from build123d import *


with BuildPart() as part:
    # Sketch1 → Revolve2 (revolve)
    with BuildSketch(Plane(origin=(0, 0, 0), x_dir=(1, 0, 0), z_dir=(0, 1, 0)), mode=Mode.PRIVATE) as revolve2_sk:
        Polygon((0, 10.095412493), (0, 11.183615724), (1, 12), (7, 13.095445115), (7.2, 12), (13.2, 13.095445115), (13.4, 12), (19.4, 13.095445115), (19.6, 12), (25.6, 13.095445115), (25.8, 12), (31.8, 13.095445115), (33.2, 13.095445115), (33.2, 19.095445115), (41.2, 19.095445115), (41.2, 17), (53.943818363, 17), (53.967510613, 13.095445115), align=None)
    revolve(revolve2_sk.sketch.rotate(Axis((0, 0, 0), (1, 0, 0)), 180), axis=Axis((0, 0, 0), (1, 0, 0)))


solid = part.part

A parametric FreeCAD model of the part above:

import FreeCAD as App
import Part
import Sketcher
from FreeCAD import Vector

doc = App.newDocument("Part")
params = doc.addObject("Spreadsheet::Sheet", "Params")
for row, (alias, value) in enumerate([
    ("sketch1_width", "8 mm"),
    ("sketch1_height", "6 mm"),
    ("sketch1_width2", "1.4 mm"),
    ("revolution_angle", "360 deg"),
], start=1):
    params.set(f"A{row}", alias)
    params.set(f"B{row}", "=" + value)
    params.setAlias(f"B{row}", alias)

body = doc.addObject("PartDesign::Body", "Body")

sketch1 = doc.addObject("Sketcher::SketchObject", "Sketch")
body.addObject(sketch1)
sketch1.AttachmentSupport = (doc.XZ_Plane, [""])
sketch1.MapMode = "FlatFace"
sketch1.addGeometry([
    Part.LineSegment(Vector(0, -11.2, 0), Vector(0, -10.1, 0)),
    Part.LineSegment(Vector(0, -10.1, 0), Vector(54, -13.1, 0)),
    Part.LineSegment(Vector(54, -13.1, 0), Vector(53.9, -17, 0)),
    Part.LineSegment(Vector(53.9, -17, 0), Vector(41.2, -17, 0)),
    Part.LineSegment(Vector(41.2, -17, 0), Vector(41.2, -19.1, 0)),
    Part.LineSegment(Vector(41.2, -19.1, 0), Vector(33.2, -19.1, 0)),
    Part.LineSegment(Vector(33.2, -19.1, 0), Vector(33.2, -13.1, 0)),
    Part.LineSegment(Vector(33.2, -13.1, 0), Vector(31.8, -13.1, 0)),
    Part.LineSegment(Vector(31.8, -13.1, 0), Vector(25.8, -12, 0)),
    Part.LineSegment(Vector(25.8, -12, 0), Vector(25.6, -13.1, 0)),
    Part.LineSegment(Vector(25.6, -13.1, 0), Vector(19.6, -12, 0)),
    Part.LineSegment(Vector(19.6, -12, 0), Vector(19.4, -13.1, 0)),
    Part.LineSegment(Vector(19.4, -13.1, 0), Vector(13.4, -12, 0)),
    Part.LineSegment(Vector(13.4, -12, 0), Vector(13.2, -13.1, 0)),
    Part.LineSegment(Vector(13.2, -13.1, 0), Vector(7.2, -12, 0)),
    Part.LineSegment(Vector(7.2, -12, 0), Vector(7, -13.1, 0)),
    Part.LineSegment(Vector(7, -13.1, 0), Vector(1, -12, 0)),
    Part.LineSegment(Vector(1, -12, 0), Vector(0, -11.2, 0)),
], False)
sketch1.addConstraint([
    Sketcher.Constraint("Coincident", 0, 2, 1, 1),
    Sketcher.Constraint("Coincident", 1, 2, 2, 1),
    Sketcher.Constraint("Coincident", 2, 2, 3, 1),
    Sketcher.Constraint("Coincident", 3, 2, 4, 1),
    Sketcher.Constraint("Coincident", 4, 2, 5, 1),
    Sketcher.Constraint("Coincident", 5, 2, 6, 1),
    Sketcher.Constraint("Coincident", 6, 2, 7, 1),
    Sketcher.Constraint("Coincident", 7, 2, 8, 1),
    Sketcher.Constraint("Coincident", 8, 2, 9, 1),
    Sketcher.Constraint("Coincident", 9, 2, 10, 1),
    Sketcher.Constraint("Coincident", 10, 2, 11, 1),
    Sketcher.Constraint("Coincident", 11, 2, 12, 1),
    Sketcher.Constraint("Coincident", 12, 2, 13, 1),
    Sketcher.Constraint("Coincident", 13, 2, 14, 1),
    Sketcher.Constraint("Coincident", 14, 2, 15, 1),
    Sketcher.Constraint("Coincident", 15, 2, 16, 1),
    Sketcher.Constraint("Coincident", 16, 2, 17, 1),
    Sketcher.Constraint("Coincident", 17, 2, 0, 1),
    Sketcher.Constraint("Vertical", 0),
    Sketcher.Constraint("Horizontal", 3),
    Sketcher.Constraint("Vertical", 4),
    Sketcher.Constraint("Horizontal", 5),
    Sketcher.Constraint("Vertical", 6),
    Sketcher.Constraint("Horizontal", 7),
    Sketcher.Constraint("PointOnObject", 0, 2, -2),
    Sketcher.Constraint("Perpendicular", 8, 9),
    Sketcher.Constraint("Perpendicular", 9, 10),
    Sketcher.Constraint("Perpendicular", 10, 11),
    Sketcher.Constraint("Perpendicular", 11, 12),
    Sketcher.Constraint("Perpendicular", 12, 13),
    Sketcher.Constraint("Perpendicular", 13, 14),
    Sketcher.Constraint("Perpendicular", 14, 15),
    Sketcher.Constraint("Perpendicular", 15, 16),
    Sketcher.Constraint("Horizontal", 1, 2, 6, 2),
    Sketcher.Constraint("Horizontal", 7, 2, 9, 2),
    Sketcher.Constraint("Horizontal", 8, 2, 10, 2),
    Sketcher.Constraint("Horizontal", 9, 2, 11, 2),
    Sketcher.Constraint("Horizontal", 10, 2, 12, 2),
    Sketcher.Constraint("Horizontal", 11, 2, 13, 2),
    Sketcher.Constraint("Horizontal", 12, 2, 14, 2),
    Sketcher.Constraint("Horizontal", 13, 2, 15, 2),
    Sketcher.Constraint("Horizontal", 14, 2, 16, 2),
    Sketcher.Constraint("DistanceX", 5, 2, 5, 1, 8.0),
    Sketcher.Constraint("DistanceY", 6, 1, 6, 2, 6.0),
    Sketcher.Constraint("DistanceX", 7, 2, 7, 1, 1.4),
    Sketcher.Constraint("DistanceY", 2, 2, -1, 1, 17.0),
    Sketcher.Constraint("DistanceY", 8, 2, -1, 1, 12.0),
    Sketcher.Constraint("DistanceX", -1, 1, 15, 2, 7.0),
    Sketcher.Constraint("DistanceX", -1, 1, 16, 2, 1.0),
    Sketcher.Constraint("DistanceX", -1, 1, 3, 2, 41.2),
    Sketcher.Constraint("DistanceX", 3, 2, 3, 1, 12.743818),
    Sketcher.Constraint("Distance", 1, 54.050832),
    Sketcher.Constraint("DistanceY", 0, 1, 0, 2, 1.088203),
    Sketcher.Constraint("DistanceX", -1, 1, 1, 2, 53.967511),
])
sketch1.setExpression("Constraints[42]", "Params.sketch1_width")
sketch1.setExpression("Constraints[43]", "Params.sketch1_height")
sketch1.setExpression("Constraints[44]", "Params.sketch1_width2")
revolution = doc.addObject("PartDesign::Revolution", "Revolution")
body.addObject(revolution)
revolution.Profile = sketch1
revolution.ReferenceAxis = (sketch1, ["H_Axis"])
revolution.setExpression("Angle", "Params.revolution_angle")

doc.recompute()
